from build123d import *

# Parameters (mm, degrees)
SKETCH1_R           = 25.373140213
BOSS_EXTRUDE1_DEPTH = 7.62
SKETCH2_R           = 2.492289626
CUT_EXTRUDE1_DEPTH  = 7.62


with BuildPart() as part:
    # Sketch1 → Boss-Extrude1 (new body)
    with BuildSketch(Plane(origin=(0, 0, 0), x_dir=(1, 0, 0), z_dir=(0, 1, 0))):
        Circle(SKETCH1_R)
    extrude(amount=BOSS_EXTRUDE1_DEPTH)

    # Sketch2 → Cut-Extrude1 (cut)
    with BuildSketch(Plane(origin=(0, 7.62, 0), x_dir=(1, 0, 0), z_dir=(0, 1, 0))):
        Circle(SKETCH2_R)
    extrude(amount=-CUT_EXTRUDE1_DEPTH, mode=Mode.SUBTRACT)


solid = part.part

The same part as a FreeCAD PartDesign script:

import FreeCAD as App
import Part
import Sketcher
Q = App.Units.Quantity

doc = App.newDocument("Part")
body = doc.addObject("PartDesign::Body", "Body")

# Sketch on XZ plane
sketch1 = body.newObject("Sketcher::SketchObject", "Sketch")
sketch1.AttachmentSupport = (doc.getObject("XZ_Plane"), [""])
sketch1.MapMode = "FlatFace"
sketch1.addGeometry(Part.Circle(App.Vector(0, 0, 0), App.Vector(0, 0, 1), 25), False)
sketch1.addConstraint([
    Sketcher.Constraint("Coincident", 0, 3, -1, 1),
    Sketcher.Constraint("Diameter", 0, Q("50.74628 mm")),
])
pad1 = body.newObject("PartDesign::Pad", "Pad")
pad1.Profile = sketch1
pad1.Length = Q("0.3 in")
pad1.Reversed = True

# Sketch on XZ plane
sketch2 = body.newObject("Sketcher::SketchObject", "Sketch001")
sketch2.AttachmentSupport = (doc.getObject("XZ_Plane"), [""])
sketch2.MapMode = "FlatFace"
sketch2.AttachmentOffset = App.Placement(App.Vector(0, 0, -0.3 * 25.4), App.Rotation())
sketch2.addGeometry(Part.Circle(App.Vector(0, 0, 0), App.Vector(0, 0, 1), 2.5), False)
sketch2.addConstraint([
    Sketcher.Constraint("Coincident", 0, 3, -1, 1),
    Sketcher.Constraint("Diameter", 0, Q("4.984579 mm")),
])
pocket1 = body.newObject("PartDesign::Pocket", "Pocket")
pocket1.Profile = sketch2
pocket1.Length = Q("0.3 in")
pocket1.Reversed = True

doc.recompute()
